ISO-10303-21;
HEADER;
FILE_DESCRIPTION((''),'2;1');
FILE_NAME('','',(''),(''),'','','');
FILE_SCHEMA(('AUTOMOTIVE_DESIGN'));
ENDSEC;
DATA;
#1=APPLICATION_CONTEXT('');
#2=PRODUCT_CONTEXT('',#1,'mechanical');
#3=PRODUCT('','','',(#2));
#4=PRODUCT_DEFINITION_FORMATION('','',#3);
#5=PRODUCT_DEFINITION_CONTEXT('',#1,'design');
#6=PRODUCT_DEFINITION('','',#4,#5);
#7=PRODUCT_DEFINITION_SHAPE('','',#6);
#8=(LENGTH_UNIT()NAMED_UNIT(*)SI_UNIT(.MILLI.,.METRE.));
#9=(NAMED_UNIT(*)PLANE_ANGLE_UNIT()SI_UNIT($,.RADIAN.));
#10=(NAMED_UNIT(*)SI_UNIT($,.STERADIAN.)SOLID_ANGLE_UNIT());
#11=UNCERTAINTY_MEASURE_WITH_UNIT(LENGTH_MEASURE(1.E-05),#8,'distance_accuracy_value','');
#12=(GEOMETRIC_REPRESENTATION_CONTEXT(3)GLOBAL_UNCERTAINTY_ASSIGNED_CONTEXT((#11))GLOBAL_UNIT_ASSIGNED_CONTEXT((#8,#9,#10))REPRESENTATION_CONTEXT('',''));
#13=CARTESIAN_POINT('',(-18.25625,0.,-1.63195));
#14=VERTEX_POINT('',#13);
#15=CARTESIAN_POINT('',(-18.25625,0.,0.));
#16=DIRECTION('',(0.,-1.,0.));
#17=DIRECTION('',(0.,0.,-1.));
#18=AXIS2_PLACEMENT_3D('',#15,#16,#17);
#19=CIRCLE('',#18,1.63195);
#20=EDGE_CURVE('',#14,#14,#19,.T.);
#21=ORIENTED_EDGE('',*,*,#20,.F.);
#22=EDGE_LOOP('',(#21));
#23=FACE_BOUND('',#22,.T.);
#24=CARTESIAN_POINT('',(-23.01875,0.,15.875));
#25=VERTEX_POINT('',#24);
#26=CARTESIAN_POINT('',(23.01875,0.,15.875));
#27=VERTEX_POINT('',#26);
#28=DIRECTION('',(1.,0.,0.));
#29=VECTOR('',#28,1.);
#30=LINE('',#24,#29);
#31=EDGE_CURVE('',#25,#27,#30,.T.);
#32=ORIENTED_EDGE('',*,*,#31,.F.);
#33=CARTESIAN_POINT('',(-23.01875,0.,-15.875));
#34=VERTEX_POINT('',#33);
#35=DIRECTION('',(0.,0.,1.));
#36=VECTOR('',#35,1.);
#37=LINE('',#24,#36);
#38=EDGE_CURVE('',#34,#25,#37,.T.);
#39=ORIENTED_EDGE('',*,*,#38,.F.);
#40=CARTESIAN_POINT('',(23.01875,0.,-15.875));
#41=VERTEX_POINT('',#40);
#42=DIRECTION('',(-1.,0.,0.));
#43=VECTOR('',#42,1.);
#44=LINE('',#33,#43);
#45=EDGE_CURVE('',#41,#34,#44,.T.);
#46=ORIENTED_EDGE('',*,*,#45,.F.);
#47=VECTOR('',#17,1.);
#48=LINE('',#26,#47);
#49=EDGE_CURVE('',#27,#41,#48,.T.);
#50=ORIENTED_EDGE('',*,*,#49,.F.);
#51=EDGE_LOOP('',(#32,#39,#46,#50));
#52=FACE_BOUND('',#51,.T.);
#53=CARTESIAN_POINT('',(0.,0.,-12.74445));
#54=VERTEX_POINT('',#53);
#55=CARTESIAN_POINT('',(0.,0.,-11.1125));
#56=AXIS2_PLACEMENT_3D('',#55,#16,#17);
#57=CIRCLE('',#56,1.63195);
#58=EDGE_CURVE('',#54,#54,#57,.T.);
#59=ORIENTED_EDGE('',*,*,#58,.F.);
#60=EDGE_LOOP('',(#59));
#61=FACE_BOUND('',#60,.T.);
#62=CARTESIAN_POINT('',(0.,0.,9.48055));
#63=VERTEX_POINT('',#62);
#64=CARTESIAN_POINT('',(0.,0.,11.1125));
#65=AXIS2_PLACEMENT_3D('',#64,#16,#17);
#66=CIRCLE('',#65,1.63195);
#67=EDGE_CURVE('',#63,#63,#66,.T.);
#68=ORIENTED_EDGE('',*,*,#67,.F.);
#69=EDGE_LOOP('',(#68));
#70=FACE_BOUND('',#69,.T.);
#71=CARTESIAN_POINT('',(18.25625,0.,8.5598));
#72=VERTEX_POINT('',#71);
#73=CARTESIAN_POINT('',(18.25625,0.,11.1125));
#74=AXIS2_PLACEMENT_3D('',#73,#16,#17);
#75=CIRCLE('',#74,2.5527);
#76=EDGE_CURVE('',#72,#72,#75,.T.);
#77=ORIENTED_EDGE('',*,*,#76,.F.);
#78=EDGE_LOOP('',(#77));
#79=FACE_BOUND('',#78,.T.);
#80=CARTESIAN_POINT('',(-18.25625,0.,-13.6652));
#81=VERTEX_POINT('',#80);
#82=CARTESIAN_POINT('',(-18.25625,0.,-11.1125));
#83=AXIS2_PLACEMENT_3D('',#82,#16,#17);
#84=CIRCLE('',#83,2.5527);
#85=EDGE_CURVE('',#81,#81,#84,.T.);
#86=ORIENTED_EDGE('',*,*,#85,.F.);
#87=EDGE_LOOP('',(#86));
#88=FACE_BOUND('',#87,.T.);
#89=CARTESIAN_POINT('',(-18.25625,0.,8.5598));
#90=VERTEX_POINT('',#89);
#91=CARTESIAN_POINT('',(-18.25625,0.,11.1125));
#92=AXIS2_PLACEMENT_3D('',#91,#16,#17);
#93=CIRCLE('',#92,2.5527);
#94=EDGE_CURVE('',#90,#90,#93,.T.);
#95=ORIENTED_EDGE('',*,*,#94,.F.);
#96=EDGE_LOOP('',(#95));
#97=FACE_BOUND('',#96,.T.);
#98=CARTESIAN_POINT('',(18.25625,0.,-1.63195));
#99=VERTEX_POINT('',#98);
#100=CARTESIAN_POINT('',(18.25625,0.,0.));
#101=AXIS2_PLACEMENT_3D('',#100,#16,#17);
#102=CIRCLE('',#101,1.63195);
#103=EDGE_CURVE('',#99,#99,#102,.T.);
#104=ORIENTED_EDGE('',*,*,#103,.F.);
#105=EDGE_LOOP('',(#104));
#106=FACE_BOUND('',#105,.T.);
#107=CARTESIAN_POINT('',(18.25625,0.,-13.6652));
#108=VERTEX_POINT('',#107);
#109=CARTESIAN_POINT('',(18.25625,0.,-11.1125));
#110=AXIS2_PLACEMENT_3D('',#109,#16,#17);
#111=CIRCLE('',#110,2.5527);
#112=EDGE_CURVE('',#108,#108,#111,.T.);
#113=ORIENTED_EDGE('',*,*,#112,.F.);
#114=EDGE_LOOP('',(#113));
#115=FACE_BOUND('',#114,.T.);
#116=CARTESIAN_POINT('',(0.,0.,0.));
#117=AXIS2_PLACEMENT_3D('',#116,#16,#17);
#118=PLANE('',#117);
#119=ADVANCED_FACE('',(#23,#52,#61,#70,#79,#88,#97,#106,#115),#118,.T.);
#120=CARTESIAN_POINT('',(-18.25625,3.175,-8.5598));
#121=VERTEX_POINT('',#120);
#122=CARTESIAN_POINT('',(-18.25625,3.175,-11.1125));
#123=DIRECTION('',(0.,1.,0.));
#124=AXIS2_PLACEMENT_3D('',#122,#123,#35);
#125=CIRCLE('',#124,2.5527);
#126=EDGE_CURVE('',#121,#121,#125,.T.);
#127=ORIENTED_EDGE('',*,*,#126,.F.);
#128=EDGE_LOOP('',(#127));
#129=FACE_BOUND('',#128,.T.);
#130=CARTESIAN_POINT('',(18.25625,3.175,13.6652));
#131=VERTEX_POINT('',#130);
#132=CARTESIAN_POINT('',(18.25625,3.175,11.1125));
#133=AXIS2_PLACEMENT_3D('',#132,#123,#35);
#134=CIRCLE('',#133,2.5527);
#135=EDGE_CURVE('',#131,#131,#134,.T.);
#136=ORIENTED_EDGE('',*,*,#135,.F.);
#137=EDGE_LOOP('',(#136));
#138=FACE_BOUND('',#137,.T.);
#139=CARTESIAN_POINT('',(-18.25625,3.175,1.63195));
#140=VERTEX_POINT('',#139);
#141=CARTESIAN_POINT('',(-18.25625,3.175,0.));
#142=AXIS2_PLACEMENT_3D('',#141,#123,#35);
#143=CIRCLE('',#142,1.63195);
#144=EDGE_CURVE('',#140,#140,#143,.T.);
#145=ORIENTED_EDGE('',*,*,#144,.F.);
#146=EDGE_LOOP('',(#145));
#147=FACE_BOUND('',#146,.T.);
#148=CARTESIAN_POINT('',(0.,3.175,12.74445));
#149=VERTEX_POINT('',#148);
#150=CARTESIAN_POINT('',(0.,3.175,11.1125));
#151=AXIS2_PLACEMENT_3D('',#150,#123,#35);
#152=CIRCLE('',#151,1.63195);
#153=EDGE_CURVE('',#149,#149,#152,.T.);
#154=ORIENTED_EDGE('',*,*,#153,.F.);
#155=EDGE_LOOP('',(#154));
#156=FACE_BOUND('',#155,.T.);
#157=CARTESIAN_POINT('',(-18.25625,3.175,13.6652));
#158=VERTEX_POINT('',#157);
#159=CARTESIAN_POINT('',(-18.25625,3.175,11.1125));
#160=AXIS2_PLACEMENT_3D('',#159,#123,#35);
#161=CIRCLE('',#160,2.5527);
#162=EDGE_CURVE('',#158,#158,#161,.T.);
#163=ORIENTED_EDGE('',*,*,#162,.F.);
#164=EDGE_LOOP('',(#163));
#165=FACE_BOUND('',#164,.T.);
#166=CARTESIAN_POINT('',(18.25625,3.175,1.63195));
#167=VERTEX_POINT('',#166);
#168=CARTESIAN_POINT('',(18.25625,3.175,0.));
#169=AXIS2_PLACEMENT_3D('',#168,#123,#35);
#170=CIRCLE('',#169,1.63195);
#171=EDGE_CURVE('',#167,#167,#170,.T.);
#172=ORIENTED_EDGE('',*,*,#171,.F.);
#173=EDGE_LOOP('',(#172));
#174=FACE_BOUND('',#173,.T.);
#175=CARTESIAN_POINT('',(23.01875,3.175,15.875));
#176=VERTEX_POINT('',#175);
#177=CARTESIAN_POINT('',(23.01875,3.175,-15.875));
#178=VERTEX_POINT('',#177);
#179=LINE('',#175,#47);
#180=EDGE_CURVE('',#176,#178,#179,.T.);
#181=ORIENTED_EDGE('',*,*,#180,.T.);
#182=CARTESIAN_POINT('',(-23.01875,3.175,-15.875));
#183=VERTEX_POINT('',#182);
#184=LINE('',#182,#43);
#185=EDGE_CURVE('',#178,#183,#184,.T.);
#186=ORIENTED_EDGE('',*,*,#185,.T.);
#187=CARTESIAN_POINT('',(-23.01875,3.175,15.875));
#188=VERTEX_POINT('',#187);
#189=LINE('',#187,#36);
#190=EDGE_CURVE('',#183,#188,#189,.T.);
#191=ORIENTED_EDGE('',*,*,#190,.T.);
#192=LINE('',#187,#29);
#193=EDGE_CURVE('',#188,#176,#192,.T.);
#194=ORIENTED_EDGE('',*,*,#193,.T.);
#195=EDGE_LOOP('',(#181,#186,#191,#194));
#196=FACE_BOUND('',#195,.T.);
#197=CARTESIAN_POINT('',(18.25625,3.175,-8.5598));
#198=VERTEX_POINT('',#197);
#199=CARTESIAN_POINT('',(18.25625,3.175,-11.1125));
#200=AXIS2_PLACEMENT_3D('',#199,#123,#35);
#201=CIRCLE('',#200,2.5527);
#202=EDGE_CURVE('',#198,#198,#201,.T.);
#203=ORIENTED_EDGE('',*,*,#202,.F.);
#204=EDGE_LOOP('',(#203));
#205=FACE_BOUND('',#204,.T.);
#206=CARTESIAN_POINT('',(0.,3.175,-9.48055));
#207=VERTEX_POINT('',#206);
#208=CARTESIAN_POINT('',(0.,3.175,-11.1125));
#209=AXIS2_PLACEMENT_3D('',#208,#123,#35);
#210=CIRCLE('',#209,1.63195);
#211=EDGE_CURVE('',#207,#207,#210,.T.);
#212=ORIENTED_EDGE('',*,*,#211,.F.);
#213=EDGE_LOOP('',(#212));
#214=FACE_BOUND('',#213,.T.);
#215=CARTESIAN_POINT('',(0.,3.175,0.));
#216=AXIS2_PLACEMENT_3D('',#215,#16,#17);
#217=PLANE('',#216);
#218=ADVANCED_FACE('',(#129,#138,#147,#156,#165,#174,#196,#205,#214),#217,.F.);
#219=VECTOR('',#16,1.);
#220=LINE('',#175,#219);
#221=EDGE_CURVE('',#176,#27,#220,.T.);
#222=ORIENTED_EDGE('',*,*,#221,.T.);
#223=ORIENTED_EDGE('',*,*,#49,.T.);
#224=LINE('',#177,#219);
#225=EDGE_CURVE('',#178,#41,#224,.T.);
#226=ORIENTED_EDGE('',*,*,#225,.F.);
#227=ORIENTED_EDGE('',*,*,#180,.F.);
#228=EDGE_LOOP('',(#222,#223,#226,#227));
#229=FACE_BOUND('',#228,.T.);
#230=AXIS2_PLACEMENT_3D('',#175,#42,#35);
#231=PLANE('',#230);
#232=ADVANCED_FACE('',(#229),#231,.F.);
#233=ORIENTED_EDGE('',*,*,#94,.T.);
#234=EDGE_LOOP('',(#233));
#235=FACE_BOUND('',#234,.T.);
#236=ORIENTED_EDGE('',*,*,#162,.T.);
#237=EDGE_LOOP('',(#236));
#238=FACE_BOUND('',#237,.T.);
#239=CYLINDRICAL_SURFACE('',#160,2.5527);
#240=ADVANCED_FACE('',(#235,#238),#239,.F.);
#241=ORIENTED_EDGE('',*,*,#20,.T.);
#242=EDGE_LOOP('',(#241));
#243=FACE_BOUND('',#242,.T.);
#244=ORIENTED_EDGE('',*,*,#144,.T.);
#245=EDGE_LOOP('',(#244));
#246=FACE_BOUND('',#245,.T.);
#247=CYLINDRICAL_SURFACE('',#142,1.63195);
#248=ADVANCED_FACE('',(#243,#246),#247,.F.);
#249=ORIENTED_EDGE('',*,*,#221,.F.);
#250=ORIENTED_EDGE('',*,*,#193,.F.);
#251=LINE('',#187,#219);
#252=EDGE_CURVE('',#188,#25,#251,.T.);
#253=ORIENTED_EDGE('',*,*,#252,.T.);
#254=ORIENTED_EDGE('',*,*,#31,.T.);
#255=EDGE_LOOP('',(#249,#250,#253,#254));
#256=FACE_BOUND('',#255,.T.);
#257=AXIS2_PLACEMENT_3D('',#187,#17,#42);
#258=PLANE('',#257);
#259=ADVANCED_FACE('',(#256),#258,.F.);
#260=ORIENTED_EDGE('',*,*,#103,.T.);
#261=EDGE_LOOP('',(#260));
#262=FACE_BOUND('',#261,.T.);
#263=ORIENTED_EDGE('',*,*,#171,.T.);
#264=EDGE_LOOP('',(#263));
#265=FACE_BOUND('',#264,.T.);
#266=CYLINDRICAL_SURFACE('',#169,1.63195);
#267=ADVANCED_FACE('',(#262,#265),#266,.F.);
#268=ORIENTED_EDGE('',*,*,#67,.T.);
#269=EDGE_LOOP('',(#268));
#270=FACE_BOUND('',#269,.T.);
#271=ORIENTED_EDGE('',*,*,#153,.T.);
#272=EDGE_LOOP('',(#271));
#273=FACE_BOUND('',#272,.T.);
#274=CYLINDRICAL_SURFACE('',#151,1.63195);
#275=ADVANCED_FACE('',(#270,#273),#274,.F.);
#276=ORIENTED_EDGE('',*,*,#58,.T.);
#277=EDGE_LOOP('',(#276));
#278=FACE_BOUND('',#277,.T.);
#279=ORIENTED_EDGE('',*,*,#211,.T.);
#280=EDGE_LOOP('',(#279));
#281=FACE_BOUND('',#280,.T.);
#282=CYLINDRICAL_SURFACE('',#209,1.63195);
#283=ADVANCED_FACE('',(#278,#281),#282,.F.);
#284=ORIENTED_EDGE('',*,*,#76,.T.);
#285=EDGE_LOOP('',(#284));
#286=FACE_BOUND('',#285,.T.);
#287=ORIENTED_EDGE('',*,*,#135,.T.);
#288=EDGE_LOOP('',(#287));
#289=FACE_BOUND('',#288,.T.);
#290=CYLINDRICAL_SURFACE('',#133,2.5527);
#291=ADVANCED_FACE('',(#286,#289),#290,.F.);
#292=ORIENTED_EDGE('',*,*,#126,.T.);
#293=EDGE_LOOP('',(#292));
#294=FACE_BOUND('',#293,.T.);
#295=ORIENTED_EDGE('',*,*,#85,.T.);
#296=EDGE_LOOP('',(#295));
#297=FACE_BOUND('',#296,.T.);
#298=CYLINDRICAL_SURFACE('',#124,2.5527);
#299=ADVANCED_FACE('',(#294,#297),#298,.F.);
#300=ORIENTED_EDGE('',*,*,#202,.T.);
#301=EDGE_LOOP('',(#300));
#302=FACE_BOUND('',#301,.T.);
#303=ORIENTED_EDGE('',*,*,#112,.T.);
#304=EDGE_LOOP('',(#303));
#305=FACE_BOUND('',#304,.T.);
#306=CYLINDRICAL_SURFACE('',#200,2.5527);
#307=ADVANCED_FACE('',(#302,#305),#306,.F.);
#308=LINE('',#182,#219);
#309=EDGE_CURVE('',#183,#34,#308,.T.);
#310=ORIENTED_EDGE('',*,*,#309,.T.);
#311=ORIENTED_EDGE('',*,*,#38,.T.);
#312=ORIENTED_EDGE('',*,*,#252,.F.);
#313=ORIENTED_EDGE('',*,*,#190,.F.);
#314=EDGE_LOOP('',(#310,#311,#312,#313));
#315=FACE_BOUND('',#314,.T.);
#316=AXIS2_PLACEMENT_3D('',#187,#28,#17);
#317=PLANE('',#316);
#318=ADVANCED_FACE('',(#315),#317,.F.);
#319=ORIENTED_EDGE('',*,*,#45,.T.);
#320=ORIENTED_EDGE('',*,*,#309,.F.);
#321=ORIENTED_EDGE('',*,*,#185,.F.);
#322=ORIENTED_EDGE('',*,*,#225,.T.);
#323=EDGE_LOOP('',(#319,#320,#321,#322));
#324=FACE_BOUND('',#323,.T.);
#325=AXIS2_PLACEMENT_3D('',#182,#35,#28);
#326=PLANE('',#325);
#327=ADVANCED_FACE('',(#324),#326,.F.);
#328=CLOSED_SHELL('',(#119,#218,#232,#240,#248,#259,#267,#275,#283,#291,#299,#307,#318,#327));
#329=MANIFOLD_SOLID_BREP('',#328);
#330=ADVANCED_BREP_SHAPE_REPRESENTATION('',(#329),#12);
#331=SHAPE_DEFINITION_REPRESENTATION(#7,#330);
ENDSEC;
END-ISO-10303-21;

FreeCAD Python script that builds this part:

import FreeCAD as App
import Part
import Sketcher

V = App.Vector
Q = App.Units.Quantity

doc = App.newDocument("Part")
body = doc.addObject("PartDesign::Body", "Body")

sketch1 = body.newObject("Sketcher::SketchObject", "Sketch")
sketch1.AttachmentSupport = (doc.getObject("XZ_Plane"), [""])
sketch1.MapMode = "FlatFace"
sketch1.addGeometry(Part.LineSegment(V(-23.01875, -15.875, 0), V(-23.01875, 15.875, 0)), False)
sketch1.addGeometry(Part.LineSegment(V(-23.01875, 15.875, 0), V(23.01875, 15.875, 0)), False)
sketch1.addGeometry(Part.LineSegment(V(23.01875, 15.875, 0), V(23.01875, -15.875, 0)), False)
sketch1.addGeometry(Part.LineSegment(V(23.01875, -15.875, 0), V(-23.01875, -15.875, 0)), False)
sketch1.addConstraint(Sketcher.Constraint("Coincident", 0, 2, 1, 1))
sketch1.addConstraint(Sketcher.Constraint("Coincident", 1, 2, 2, 1))
sketch1.addConstraint(Sketcher.Constraint("Coincident", 2, 2, 3, 1))
sketch1.addConstraint(Sketcher.Constraint("Coincident", 3, 2, 0, 1))
sketch1.addConstraint(Sketcher.Constraint("Vertical", 0))
sketch1.addConstraint(Sketcher.Constraint("Horizontal", 1))
sketch1.addConstraint(Sketcher.Constraint("Vertical", 2))
sketch1.addConstraint(Sketcher.Constraint("Horizontal", 3))
sketch1.addConstraint(Sketcher.Constraint("Symmetric", 0, 2, 2, 2, -1, 1))
sketch1.addConstraint(Sketcher.Constraint("DistanceY", 0, 1, 0, 2, Q("1.25 in")))
sketch1.addConstraint(Sketcher.Constraint("DistanceX", 1, 1, 1, 2, Q("1.8125 in")))
pad1 = body.newObject("PartDesign::Pad", "Pad")
pad1.Profile = sketch1
pad1.Length = Q("0.125 in")
pad1.Reversed = True

sketch2 = body.newObject("Sketcher::SketchObject", "Sketch001")
sketch2.AttachmentSupport = (doc.getObject("XZ_Plane"), [""])
sketch2.MapMode = "FlatFace"
sketch2.AttachmentOffset = App.Placement(V(0, 0, -0.125 * 25.4), App.Rotation())
sketch2.addGeometry(Part.Circle(V(-18.25625, -11.1125, 0), V(0, 0, 1), 2.5527), False)
sketch2.addGeometry(Part.Circle(V(-18.25625, 11.1125, 0), V(0, 0, 1), 2.5527), False)
sketch2.addGeometry(Part.Circle(V(18.25625, 11.1125, 0), V(0, 0, 1), 2.5527), False)
sketch2.addGeometry(Part.Circle(V(18.25625, -11.1125, 0), V(0, 0, 1), 2.5527), False)
sketch2.addConstraint(Sketcher.Constraint("Equal", 0, 1))
sketch2.addConstraint(Sketcher.Constraint("Equal", 1, 2))
sketch2.addConstraint(Sketcher.Constraint("Equal", 2, 3))
sketch2.addConstraint(Sketcher.Constraint("Symmetric", 0, 3, 2, 3, -1, 1))
sketch2.addConstraint(Sketcher.Constraint("Symmetric", 1, 3, 3, 3, -1, 1))
sketch2.addConstraint(Sketcher.Constraint("Symmetric", 1, 3, 2, 3, -2))
sketch2.addConstraint(Sketcher.Constraint("Diameter", 0, Q("0.201 in")))
sketch2.addConstraint(Sketcher.Constraint("DistanceX", 0, 3, -1, 1, Q("0.71875 in")))
sketch2.addConstraint(Sketcher.Constraint("DistanceY", 0, 3, -1, 1, Q("0.4375 in")))
doc.recompute()
hole = body.newObject("PartDesign::Hole", "Hole")
hole.Profile = sketch2
hole.ThreadType = "None"
hole.Diameter = Q("0.201 in")
hole.DepthType = "ThroughAll"
hole.Reversed = True

sketch3 = body.newObject("Sketcher::SketchObject", "Sketch002")
sketch3.AttachmentSupport = (doc.getObject("XZ_Plane"), [""])
sketch3.MapMode = "FlatFace"
sketch3.AttachmentOffset = App.Placement(V(0, 0, -0.125 * 25.4), App.Rotation())
sketch3.addGeometry(Part.Circle(V(0, -11.1125, 0), V(0, 0, 1), 1.63195), False)
sketch3.addGeometry(Part.Circle(V(0, 11.1125, 0), V(0, 0, 1), 1.63195), False)
sketch3.addGeometry(Part.Circle(V(-18.25625, 0, 0), V(0, 0, 1), 1.63195), False)
sketch3.addGeometry(Part.Circle(V(18.25625, 0, 0), V(0, 0, 1), 1.63195), False)
sketch3.addConstraint(Sketcher.Constraint("Equal", 0, 1))
sketch3.addConstraint(Sketcher.Constraint("Equal", 1, 2))
sketch3.addConstraint(Sketcher.Constraint("Equal", 2, 3))
sketch3.addConstraint(Sketcher.Constraint("Symmetric", 0, 3, 1, 3, -1, 1))
sketch3.addConstraint(Sketcher.Constraint("Symmetric", 2, 3, 3, 3, -1, 1))
sketch3.addConstraint(Sketcher.Constraint("PointOnObject", 0, 3, -2))
sketch3.addConstraint(Sketcher.Constraint("PointOnObject", 2, 3, -1))
sketch3.addConstraint(Sketcher.Constraint("Diameter", 0, Q("0.1285 in")))
sketch3.addConstraint(Sketcher.Constraint("DistanceY", 0, 3, -1, 1, Q("0.4375 in")))
sketch3.addConstraint(Sketcher.Constraint("DistanceX", 2, 3, -1, 1, Q("0.71875 in")))
doc.recompute()
hole2 = body.newObject("PartDesign::Hole", "Hole001")
hole2.Profile = sketch3
hole2.ThreadType = "None"
hole2.Diameter = Q("0.1285 in")
hole2.DepthType = "ThroughAll"
hole2.Reversed = True

doc.recompute()
